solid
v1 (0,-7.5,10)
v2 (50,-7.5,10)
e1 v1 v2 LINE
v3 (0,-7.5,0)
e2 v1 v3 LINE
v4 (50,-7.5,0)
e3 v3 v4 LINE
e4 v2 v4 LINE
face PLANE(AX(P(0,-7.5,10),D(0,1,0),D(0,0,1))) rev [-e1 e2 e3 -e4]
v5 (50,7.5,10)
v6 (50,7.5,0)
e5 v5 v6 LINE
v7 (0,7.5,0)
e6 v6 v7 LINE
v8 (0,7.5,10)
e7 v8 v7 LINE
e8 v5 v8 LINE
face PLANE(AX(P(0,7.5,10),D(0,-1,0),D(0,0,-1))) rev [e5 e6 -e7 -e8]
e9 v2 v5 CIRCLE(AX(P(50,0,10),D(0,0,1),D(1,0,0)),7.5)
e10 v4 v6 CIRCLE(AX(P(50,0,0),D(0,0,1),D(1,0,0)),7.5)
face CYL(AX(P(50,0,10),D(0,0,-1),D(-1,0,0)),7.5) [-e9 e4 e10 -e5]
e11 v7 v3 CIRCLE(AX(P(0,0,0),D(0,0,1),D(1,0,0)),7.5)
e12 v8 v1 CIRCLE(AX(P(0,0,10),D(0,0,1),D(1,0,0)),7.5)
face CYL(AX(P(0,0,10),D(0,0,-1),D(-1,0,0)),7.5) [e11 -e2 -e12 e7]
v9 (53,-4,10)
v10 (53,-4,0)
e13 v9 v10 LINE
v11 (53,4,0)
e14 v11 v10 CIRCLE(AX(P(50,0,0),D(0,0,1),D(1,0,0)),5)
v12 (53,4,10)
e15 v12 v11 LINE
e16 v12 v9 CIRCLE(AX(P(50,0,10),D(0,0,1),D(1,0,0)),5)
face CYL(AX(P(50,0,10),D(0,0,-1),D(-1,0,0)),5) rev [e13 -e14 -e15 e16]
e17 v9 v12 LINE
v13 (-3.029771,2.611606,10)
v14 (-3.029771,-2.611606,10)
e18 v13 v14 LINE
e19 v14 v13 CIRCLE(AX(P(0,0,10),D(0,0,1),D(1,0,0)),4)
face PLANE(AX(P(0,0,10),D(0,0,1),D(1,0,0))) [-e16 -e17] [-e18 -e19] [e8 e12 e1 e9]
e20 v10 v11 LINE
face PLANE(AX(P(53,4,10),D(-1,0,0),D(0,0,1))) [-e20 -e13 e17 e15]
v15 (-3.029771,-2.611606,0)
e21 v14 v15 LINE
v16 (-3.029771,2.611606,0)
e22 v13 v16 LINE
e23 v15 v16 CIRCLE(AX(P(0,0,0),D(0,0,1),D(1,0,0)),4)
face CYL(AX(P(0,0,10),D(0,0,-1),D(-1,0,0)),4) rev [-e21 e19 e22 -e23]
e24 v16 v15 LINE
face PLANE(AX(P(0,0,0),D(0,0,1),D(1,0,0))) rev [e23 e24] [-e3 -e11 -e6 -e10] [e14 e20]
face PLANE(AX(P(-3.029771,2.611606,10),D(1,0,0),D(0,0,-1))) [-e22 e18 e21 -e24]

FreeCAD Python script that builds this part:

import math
import FreeCAD as App
import Part
import Sketcher
from FreeCAD import Vector

doc = App.newDocument("Part")
params = doc.addObject("Spreadsheet::Sheet", "Params")
for row, (alias, value) in enumerate([
    ("sketch1_radius", "4 mm"),
    ("sketch1_radius2", "5 mm"),
    ("sketch1_radius3", "7.5 mm"),
    ("sketch1_width", "50 mm"),
    ("sketch1_height", "8 mm"),
    ("pad1_length", "10 mm"),
], start=1):
    params.set(f"A{row}", alias)
    params.set(f"B{row}", "=" + value)
    params.setAlias(f"B{row}", alias)

body = doc.addObject("PartDesign::Body", "Body")

# Sketch on XY plane
sketch1 = body.newObject("Sketcher::SketchObject", "Sketch")
sketch1.AttachmentSupport = (doc.getObject("XY_Plane"), [""])
sketch1.MapMode = "FlatFace"
sketch1.addGeometry([
    Part.LineSegment(Vector(50, 7.5, 0), Vector(0, 7.5, 0)),  # 0
    Part.ArcOfCircle(Part.Circle(Vector(0, 0, 0), Vector(0, 0, 1), 7.5), math.radians(90), math.radians(270)),  # 1
    Part.LineSegment(Vector(0, -7.5, 0), Vector(50, -7.5, 0)),  # 2
    Part.ArcOfCircle(Part.Circle(Vector(50, 0, 0), Vector(0, 0, 1), 7.5), math.radians(-90), math.radians(90)),  # 3
    Part.ArcOfCircle(Part.Circle(Vector(0, 0, 0), Vector(0, 0, 1), 4), math.radians(-139.23927), math.radians(139.23927)),  # 4
    Part.LineSegment(Vector(-3.029771, -2.611606, 0), Vector(-3.029771, 2.611606, 0)),  # 5
    Part.LineSegment(Vector(53, 4, 0), Vector(53, -4, 0)),  # 6
    Part.ArcOfCircle(Part.Circle(Vector(50, 0, 0), Vector(0, 0, 1), 5), math.radians(53.130102), math.radians(306.869898)),  # 7
], False)
sketch1.addConstraint([
    Sketcher.Constraint("Tangent", 0, 2, 1, 1),
    Sketcher.Constraint("Tangent", 1, 2, 2, 1),
    Sketcher.Constraint("Tangent", 2, 2, 3, 1),
    Sketcher.Constraint("Tangent", 3, 2, 0, 1),
    Sketcher.Constraint("Coincident", 4, 1, 5, 1),
    Sketcher.Constraint("Coincident", 5, 2, 4, 2),
    Sketcher.Constraint("Coincident", 6, 1, 7, 1),
    Sketcher.Constraint("Coincident", 7, 2, 6, 2),
    Sketcher.Constraint("Horizontal", 0),
    Sketcher.Constraint("Horizontal", 2),
    Sketcher.Constraint("Vertical", 5),
    Sketcher.Constraint("Vertical", 6),
    Sketcher.Constraint("Coincident", 1, 3, -1, 1),
    Sketcher.Constraint("Coincident", 4, 3, -1, 1),
    Sketcher.Constraint("Coincident", 7, 3, 3, 3),
    Sketcher.Constraint("Radius", 4, 4.0),
    Sketcher.Constraint("Radius", 7, 5.0),
    Sketcher.Constraint("Radius", 1, 7.5),
    Sketcher.Constraint("DistanceX", 0, 2, 0, 1, 50.0),
    Sketcher.Constraint("DistanceY", 6, 2, 6, 1, 8.0),
    Sketcher.Constraint("DistanceY", 5, 1, 5, 2, 5.223213),
])
sketch1.setExpression("Constraints[15]", "Params.sketch1_radius")
sketch1.setExpression("Constraints[16]", "Params.sketch1_radius2")
sketch1.setExpression("Constraints[17]", "Params.sketch1_radius3")
sketch1.setExpression("Constraints[18]", "Params.sketch1_width")
sketch1.setExpression("Constraints[19]", "Params.sketch1_height")
pad1 = body.newObject("PartDesign::Pad", "Pad")
pad1.Profile = sketch1
pad1.setExpression("Length", "Params.pad1_length")

doc.recompute()
